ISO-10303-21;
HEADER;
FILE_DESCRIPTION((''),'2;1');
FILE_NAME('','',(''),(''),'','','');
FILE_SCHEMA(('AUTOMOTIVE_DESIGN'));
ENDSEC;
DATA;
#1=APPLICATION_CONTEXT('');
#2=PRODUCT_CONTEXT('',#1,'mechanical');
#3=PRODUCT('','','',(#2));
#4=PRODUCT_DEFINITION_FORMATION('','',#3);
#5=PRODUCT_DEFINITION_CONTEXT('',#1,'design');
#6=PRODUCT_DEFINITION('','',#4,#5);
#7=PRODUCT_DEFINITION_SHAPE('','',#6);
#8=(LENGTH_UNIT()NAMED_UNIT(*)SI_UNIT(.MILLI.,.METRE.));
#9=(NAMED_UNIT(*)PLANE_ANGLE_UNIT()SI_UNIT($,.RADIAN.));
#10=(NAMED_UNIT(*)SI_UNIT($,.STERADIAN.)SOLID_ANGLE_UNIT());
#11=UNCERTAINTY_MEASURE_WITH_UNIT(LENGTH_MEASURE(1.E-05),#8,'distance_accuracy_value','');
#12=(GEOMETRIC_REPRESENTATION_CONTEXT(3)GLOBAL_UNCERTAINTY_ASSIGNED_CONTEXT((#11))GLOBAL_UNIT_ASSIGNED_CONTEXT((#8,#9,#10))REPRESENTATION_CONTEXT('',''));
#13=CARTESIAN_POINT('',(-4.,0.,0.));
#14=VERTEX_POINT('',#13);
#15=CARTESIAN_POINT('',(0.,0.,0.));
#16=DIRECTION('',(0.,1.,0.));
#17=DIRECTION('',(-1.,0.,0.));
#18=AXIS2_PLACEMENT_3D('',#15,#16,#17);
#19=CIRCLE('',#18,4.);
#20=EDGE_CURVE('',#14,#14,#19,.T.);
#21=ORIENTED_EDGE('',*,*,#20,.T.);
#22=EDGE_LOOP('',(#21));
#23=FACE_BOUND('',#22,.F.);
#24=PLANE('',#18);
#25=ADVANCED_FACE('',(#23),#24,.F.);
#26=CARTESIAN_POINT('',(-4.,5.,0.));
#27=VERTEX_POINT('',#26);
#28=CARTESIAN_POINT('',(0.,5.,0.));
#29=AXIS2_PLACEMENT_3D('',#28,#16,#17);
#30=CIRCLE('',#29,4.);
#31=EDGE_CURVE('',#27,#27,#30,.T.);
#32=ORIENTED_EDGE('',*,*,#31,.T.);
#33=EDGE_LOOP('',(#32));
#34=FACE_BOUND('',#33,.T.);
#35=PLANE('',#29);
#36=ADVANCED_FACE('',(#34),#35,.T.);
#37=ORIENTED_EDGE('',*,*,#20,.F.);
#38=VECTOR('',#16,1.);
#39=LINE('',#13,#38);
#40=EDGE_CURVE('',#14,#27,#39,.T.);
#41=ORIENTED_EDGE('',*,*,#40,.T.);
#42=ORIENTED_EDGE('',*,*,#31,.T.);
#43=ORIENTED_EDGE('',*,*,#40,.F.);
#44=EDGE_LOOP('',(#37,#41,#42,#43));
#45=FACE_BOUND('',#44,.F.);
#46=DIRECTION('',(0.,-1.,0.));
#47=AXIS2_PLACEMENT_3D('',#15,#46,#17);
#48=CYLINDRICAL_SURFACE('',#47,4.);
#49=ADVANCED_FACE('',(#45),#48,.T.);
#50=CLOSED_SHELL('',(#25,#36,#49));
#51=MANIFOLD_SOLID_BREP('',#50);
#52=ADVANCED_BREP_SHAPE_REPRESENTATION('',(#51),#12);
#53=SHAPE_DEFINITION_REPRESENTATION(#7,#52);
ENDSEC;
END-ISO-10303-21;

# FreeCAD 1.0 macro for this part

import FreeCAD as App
import Part
import Sketcher

doc = App.newDocument("Part")
body = doc.addObject("PartDesign::Body", "Body")

sketch1 = doc.addObject("Sketcher::SketchObject", "Sketch")
body.addObject(sketch1)
sketch1.AttachmentSupport = (doc.XZ_Plane, [""])
sketch1.MapMode = "FlatFace"
sketch1.addGeometry(Part.Circle(App.Vector(0, 0, 0), App.Vector(0, 0, 1), 4), False)
sketch1.addConstraint(Sketcher.Constraint("Coincident", 0, 3, -1, 1))
sketch1.addConstraint(Sketcher.Constraint("Diameter", 0, 8.0))
pad1 = doc.addObject("PartDesign::Pad", "Pad")
body.addObject(pad1)
pad1.Profile = sketch1
pad1.Length = 5
pad1.Reversed = True

doc.recompute()
